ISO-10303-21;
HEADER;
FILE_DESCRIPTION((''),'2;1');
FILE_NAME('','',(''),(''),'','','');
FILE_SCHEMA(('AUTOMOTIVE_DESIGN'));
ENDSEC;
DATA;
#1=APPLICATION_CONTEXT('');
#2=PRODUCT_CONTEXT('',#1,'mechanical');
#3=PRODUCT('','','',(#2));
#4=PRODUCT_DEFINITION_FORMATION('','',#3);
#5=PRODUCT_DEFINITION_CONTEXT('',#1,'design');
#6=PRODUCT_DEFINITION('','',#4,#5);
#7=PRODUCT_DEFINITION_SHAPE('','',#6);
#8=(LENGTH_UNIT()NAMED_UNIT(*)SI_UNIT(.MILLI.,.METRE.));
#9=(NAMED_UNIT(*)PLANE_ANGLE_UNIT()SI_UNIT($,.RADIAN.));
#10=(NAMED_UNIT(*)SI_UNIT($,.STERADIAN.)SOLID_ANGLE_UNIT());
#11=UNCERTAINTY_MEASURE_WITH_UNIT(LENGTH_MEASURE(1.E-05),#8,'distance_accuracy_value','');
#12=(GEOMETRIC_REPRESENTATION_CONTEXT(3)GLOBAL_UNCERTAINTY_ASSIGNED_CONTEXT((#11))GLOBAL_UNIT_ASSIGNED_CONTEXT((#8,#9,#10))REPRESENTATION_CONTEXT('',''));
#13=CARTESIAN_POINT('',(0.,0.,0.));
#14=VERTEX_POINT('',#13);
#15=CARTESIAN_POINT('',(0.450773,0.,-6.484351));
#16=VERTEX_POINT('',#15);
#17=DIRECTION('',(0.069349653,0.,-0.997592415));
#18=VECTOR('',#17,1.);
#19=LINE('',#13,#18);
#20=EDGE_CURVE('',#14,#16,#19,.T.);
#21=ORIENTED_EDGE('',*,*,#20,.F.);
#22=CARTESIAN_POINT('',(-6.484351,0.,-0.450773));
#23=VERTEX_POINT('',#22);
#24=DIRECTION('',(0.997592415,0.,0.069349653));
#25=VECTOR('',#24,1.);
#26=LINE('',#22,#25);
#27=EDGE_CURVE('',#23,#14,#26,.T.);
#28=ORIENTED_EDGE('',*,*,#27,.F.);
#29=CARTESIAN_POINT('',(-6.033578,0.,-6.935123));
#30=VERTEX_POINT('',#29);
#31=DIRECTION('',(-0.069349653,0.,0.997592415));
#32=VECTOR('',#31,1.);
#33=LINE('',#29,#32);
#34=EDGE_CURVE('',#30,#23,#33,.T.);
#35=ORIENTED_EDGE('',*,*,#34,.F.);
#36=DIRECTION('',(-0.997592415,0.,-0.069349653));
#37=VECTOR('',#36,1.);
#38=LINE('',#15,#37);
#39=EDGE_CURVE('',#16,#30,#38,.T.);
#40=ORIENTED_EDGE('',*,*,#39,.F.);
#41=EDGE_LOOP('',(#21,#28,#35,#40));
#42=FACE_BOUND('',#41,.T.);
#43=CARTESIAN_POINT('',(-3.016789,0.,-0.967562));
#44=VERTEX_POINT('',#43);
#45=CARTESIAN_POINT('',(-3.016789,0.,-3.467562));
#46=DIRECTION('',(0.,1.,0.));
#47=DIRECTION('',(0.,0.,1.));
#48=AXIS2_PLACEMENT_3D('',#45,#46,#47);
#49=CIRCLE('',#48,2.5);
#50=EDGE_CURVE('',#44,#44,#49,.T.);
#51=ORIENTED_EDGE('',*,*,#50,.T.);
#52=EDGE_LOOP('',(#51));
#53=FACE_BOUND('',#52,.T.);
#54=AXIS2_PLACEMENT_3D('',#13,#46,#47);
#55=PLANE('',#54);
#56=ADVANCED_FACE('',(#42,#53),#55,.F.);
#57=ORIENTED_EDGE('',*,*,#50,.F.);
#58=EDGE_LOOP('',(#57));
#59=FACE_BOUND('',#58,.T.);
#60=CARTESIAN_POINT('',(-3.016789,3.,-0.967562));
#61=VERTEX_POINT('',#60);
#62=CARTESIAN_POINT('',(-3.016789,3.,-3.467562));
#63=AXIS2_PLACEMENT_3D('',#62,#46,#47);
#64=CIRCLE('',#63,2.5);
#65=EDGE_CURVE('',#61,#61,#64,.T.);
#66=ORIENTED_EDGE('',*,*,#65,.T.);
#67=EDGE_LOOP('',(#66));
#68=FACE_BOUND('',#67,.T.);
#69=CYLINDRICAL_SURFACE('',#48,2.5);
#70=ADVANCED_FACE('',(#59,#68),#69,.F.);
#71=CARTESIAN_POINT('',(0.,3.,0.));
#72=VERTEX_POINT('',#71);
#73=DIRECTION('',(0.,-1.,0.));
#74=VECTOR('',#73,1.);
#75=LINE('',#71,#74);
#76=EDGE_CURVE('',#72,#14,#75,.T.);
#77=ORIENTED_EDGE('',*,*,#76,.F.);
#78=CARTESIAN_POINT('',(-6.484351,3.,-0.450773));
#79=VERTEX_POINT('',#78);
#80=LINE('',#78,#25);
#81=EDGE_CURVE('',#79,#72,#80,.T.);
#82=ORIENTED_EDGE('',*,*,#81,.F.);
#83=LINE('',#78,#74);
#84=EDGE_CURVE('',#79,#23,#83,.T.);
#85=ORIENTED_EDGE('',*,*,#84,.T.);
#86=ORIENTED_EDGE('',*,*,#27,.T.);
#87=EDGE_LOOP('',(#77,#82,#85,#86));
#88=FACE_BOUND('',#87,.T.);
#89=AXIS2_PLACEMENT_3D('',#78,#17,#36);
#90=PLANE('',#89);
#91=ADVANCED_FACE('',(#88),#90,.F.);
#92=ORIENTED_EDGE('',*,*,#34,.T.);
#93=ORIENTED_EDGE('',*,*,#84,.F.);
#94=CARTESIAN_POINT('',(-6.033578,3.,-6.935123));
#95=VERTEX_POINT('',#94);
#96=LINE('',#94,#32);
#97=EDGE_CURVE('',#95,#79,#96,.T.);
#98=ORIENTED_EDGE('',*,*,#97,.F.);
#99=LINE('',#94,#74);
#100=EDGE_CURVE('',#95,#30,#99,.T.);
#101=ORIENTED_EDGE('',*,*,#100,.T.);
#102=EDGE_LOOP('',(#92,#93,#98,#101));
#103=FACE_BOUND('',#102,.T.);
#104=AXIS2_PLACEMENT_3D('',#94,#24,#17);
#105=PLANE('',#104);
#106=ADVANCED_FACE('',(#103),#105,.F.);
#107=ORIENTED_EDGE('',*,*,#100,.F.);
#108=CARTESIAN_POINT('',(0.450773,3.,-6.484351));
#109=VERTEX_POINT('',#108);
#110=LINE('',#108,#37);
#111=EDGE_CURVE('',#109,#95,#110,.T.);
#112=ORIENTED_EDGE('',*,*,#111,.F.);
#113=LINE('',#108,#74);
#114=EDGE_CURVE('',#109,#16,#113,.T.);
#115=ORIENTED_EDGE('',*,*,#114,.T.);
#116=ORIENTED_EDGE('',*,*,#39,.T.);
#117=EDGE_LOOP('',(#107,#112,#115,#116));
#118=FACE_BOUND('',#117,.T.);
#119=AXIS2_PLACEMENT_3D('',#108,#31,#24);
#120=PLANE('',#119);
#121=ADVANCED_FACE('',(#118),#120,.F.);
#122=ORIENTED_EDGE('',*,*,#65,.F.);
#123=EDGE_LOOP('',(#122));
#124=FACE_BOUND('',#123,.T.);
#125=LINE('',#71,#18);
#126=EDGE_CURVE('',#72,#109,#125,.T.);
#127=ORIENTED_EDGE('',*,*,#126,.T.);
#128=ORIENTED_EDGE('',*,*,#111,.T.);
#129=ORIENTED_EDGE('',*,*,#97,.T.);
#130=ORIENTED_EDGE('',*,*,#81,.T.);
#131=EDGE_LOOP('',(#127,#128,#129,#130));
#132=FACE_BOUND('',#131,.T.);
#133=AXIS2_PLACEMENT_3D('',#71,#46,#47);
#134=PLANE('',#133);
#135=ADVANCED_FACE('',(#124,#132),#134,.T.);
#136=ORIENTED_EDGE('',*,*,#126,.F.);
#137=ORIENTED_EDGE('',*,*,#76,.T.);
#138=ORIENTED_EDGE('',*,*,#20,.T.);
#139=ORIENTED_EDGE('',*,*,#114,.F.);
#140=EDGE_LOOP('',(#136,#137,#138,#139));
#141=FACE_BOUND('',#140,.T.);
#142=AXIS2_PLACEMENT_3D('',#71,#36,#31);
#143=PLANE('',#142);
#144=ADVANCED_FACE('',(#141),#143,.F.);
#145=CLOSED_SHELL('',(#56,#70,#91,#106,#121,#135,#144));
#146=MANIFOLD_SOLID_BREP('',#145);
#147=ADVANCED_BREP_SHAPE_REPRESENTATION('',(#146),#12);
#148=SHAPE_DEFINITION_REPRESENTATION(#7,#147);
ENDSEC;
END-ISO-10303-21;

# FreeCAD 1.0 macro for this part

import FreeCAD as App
import Part
import Sketcher
from FreeCAD import Vector
Q = App.Units.Quantity


def add_polygon(sketch, points):
    """Adds a closed chain of lines whose ends are joined by coincident constraints."""
    first, n = sketch.GeometryCount, len(points)
    for a, b in zip(points, points[1:] + points[:1]):
        sketch.addGeometry(Part.LineSegment(App.Vector(*a, 0), App.Vector(*b, 0)), False)
    for i in range(n):
        sketch.addConstraint(Sketcher.Constraint("Coincident", first + i, 2, first + (i + 1) % n, 1))

doc = App.newDocument("Part")
body = doc.addObject("PartDesign::Body", "Body")

sketch1 = body.newObject("Sketcher::SketchObject", "Sketch")
sketch1.AttachmentSupport = (doc.getObject("XZ_Plane"), [""])
sketch1.MapMode = "FlatFace"
add_polygon(sketch1, [(0, 0), (0.450773, -6.484351), (-6.033578, -6.935123), (-6.484351, -0.450773)])
sketch1.addConstraint([
    Sketcher.Constraint("Coincident", 3, 2, -1, 1),
    Sketcher.Constraint("Perpendicular", 0, 1),
    Sketcher.Constraint("Perpendicular", 1, 2),
    Sketcher.Constraint("Perpendicular", 2, 3),
    Sketcher.Constraint("Equal", 0, 1),
    Sketcher.Constraint("Distance", 0, Q("6.5 mm")),
    Sketcher.Constraint("DistanceY", 0, 2, -1, 1, Q("6.484351 mm")),
])
pad1 = body.newObject("PartDesign::Pad", "Pad")
pad1.Profile = sketch1
pad1.Length = 3
pad1.Reversed = True

sketch2 = body.newObject("Sketcher::SketchObject", "Sketch001")
sketch2.AttachmentSupport = (doc.getObject("XZ_Plane"), [""])
sketch2.MapMode = "FlatFace"
sketch2.AttachmentOffset = App.Placement(Vector(0, 0, -3), App.Rotation())
sketch2.addGeometry(Part.Circle(Vector(-3.016789, -3.467562, 0), Vector(0, 0, 1), 2.5), False)
sketch2.addConstraint([
    Sketcher.Constraint("Diameter", 0, Q("5 mm")),
    Sketcher.Constraint("DistanceX", 0, 3, -1, 1, Q("3.016789 mm")),
    Sketcher.Constraint("DistanceY", 0, 3, -1, 1, Q("3.467562 mm")),
])
pocket1 = body.newObject("PartDesign::Pocket", "Pocket")
pocket1.Profile = sketch2
pocket1.Length = 3
pocket1.Reversed = True

doc.recompute()
